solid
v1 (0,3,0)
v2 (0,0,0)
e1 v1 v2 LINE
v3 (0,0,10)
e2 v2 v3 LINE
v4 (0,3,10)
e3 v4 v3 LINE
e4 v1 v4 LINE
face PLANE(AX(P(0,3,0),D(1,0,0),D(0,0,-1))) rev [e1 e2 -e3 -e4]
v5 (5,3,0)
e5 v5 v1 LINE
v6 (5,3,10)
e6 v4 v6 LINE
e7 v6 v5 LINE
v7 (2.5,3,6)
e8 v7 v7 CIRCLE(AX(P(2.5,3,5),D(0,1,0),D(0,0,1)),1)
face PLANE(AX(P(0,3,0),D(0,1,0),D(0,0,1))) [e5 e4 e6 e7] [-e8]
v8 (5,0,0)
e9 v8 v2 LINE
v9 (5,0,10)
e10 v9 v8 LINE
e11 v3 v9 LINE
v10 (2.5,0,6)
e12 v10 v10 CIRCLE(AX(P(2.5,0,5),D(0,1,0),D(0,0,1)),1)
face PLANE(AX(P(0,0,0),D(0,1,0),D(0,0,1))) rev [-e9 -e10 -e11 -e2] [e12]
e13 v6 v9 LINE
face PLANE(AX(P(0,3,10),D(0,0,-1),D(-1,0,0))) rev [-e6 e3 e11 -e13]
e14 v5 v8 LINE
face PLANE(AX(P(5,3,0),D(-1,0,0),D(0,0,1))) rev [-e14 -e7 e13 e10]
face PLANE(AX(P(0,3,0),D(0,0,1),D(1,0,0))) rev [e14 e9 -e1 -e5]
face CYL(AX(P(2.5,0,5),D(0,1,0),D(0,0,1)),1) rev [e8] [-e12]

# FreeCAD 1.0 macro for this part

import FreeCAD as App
import Part
import Sketcher
Q = App.Units.Quantity


def add_polygon(sketch, points):
    """Adds a closed chain of lines whose ends are joined by coincident constraints."""
    first, n = sketch.GeometryCount, len(points)
    for a, b in zip(points, points[1:] + points[:1]):
        sketch.addGeometry(Part.LineSegment(App.Vector(*a, 0), App.Vector(*b, 0)), False)
    for i in range(n):
        sketch.addConstraint(Sketcher.Constraint("Coincident", first + i, 2, first + (i + 1) % n, 1))

doc = App.newDocument("Part")
params = doc.addObject("Spreadsheet::Sheet", "Params")
for row, (alias, value) in enumerate([
    ("sketch1_width", "5 mm"),
    ("sketch1_height", "10 mm"),
    ("pad1_length", "3 mm"),
    ("sketch2_diameter", "2 mm"),
], start=1):
    params.set(f"A{row}", alias)
    params.set(f"B{row}", "=" + value)
    params.setAlias(f"B{row}", alias)

body = doc.addObject("PartDesign::Body", "Body")

sketch1 = doc.addObject("Sketcher::SketchObject", "Sketch")
body.addObject(sketch1)
sketch1.AttachmentSupport = (doc.XZ_Plane, [""])
sketch1.MapMode = "FlatFace"
add_polygon(sketch1, [(0, 0), (0, 10), (5, 10), (5, 0)])
sketch1.addConstraint([
    Sketcher.Constraint("Vertical", 0),
    Sketcher.Constraint("Horizontal", 1),
    Sketcher.Constraint("Vertical", 2),
    Sketcher.Constraint("Horizontal", 3),
    Sketcher.Constraint("Coincident", 3, 2, -1, 1),
    Sketcher.Constraint("DistanceX", 1, 1, 1, 2, Q("5 mm")),
    Sketcher.Constraint("DistanceY", 0, 1, 0, 2, Q("10 mm")),
])
sketch1.setExpression("Constraints[9]", "Params.sketch1_width")
sketch1.setExpression("Constraints[10]", "Params.sketch1_height")
pad1 = doc.addObject("PartDesign::Pad", "Pad")
body.addObject(pad1)
pad1.Profile = sketch1
pad1.setExpression("Length", "Params.pad1_length")
pad1.Reversed = True

sketch2 = doc.addObject("Sketcher::SketchObject", "Sketch001")
body.addObject(sketch2)
sketch2.AttachmentSupport = (doc.XZ_Plane, [""])
sketch2.MapMode = "FlatFace"
sketch2.AttachmentOffset = App.Placement(App.Vector(0, 0, -3), App.Rotation())
sketch2.addGeometry(Part.Circle(App.Vector(2.5, 5, 0), App.Vector(0, 0, 1), 1), False)
sketch2.addConstraint([
    Sketcher.Constraint("Diameter", 0, Q("2 mm")),
    Sketcher.Constraint("DistanceY", -1, 1, 0, 3, Q("5 mm")),
    Sketcher.Constraint("DistanceX", -1, 1, 0, 3, Q("2.5 mm")),
])
sketch2.setExpression("Constraints[0]", "Params.sketch2_diameter")
pocket1 = doc.addObject("PartDesign::Pocket", "Pocket")
body.addObject(pocket1)
pocket1.Profile = sketch2
pocket1.Type = "ThroughAll"
pocket1.Reversed = True

doc.recompute()
